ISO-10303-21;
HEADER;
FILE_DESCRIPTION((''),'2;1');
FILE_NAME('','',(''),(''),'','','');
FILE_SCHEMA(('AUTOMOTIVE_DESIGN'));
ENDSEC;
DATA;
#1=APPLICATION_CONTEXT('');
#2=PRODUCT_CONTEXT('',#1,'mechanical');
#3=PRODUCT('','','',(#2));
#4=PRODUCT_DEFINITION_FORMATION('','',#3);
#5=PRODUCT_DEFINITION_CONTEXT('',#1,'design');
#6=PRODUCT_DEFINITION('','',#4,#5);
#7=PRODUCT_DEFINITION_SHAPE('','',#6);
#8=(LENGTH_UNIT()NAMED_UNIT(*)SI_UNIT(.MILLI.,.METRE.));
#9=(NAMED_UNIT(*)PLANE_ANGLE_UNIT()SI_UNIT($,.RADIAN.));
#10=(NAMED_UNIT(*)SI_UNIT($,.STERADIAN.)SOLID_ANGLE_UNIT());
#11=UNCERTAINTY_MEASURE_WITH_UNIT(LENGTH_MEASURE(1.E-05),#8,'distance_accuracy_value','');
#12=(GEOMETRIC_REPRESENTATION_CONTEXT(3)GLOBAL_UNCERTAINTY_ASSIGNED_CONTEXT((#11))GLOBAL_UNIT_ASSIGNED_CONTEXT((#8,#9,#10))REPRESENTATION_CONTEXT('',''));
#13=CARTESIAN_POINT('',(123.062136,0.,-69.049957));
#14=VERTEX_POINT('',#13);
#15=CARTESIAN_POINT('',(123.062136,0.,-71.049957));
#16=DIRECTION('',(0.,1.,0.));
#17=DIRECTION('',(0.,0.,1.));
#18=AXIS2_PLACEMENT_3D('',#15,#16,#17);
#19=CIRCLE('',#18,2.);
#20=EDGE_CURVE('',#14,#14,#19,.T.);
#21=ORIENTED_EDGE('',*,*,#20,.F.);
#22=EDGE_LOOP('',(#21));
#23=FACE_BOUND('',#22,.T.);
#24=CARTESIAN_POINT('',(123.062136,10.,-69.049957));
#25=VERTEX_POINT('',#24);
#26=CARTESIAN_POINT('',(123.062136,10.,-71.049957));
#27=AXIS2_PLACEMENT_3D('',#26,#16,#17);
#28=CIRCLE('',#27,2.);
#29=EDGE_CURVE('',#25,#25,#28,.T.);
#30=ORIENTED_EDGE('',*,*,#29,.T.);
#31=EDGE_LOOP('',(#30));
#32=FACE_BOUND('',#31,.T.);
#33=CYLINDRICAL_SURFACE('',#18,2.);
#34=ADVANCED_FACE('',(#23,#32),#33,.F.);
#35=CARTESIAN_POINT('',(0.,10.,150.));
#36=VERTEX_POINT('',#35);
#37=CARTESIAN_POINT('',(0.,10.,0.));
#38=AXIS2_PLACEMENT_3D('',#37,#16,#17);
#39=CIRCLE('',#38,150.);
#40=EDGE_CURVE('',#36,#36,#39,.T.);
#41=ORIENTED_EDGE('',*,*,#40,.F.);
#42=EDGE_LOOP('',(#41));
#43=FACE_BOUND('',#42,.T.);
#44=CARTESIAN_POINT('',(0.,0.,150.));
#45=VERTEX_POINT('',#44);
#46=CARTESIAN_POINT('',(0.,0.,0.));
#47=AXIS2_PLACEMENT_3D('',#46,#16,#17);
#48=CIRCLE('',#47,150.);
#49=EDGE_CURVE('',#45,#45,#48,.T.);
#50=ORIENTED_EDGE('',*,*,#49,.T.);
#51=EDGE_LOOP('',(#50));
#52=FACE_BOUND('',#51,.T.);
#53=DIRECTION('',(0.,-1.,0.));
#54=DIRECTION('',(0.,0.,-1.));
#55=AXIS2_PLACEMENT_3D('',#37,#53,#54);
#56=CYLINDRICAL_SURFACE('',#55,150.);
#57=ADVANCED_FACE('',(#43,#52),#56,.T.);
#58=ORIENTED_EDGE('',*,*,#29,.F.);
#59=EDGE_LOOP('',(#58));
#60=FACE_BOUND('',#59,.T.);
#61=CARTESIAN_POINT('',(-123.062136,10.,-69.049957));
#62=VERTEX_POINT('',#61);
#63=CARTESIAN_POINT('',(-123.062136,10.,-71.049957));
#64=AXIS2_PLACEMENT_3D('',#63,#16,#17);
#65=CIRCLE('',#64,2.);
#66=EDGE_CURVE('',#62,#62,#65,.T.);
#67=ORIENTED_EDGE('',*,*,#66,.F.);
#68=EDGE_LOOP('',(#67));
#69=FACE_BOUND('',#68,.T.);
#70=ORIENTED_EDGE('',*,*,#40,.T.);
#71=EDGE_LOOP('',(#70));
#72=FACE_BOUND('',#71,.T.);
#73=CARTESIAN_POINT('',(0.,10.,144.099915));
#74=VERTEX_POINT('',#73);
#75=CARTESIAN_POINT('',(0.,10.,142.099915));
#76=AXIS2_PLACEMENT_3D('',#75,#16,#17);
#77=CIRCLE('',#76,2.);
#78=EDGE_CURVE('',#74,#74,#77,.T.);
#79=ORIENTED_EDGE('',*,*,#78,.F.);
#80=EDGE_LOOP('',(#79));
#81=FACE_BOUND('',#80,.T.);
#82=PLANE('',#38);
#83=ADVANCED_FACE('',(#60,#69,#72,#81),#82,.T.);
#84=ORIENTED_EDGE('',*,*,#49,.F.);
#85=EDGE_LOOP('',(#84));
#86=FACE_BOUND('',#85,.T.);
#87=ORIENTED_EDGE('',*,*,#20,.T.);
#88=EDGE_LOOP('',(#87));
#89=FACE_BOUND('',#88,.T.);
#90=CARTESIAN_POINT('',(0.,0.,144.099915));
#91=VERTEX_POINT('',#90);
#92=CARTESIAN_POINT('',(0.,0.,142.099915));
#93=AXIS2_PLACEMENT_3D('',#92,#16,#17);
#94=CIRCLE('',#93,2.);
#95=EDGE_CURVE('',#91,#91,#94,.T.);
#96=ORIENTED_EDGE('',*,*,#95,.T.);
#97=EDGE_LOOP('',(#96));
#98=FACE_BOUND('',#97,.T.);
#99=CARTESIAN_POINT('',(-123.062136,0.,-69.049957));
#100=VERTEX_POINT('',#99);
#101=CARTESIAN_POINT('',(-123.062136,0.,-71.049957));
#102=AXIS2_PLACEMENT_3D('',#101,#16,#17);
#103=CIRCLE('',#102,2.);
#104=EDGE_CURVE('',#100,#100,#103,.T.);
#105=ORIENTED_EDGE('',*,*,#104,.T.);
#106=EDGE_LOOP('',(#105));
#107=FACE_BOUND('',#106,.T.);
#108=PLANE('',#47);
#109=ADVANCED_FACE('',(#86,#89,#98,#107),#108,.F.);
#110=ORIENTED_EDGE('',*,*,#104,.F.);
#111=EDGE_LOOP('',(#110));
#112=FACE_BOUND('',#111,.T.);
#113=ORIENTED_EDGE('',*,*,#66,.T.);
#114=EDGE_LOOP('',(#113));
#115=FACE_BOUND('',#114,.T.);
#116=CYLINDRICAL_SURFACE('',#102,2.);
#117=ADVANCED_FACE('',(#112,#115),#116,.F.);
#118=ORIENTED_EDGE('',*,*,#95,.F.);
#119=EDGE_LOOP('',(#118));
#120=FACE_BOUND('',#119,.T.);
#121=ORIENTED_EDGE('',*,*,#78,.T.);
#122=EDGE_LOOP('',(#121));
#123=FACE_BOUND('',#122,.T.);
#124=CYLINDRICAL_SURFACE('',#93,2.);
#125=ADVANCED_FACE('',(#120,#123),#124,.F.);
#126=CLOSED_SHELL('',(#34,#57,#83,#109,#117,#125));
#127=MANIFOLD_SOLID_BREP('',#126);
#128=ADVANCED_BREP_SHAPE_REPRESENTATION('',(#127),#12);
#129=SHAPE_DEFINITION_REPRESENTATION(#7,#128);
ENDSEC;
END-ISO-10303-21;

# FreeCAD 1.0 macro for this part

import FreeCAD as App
import Part
import Sketcher

V = App.Vector

doc = App.newDocument("Part")
params = doc.addObject("Spreadsheet::Sheet", "Params")
for row, (alias, value) in enumerate([
    ("sketch1_diameter", "300 mm"),
    ("pad1_length", "10 mm"),
    ("sketch2_diameter", "4 mm"),
    ("pocket1_length", "10 mm"),
], start=1):
    params.set(f"A{row}", alias)
    params.set(f"B{row}", "=" + value)
    params.setAlias(f"B{row}", alias)

body = doc.addObject("PartDesign::Body", "Body")

sketch1 = body.newObject("Sketcher::SketchObject", "Sketch")
sketch1.AttachmentSupport = (doc.getObject("XZ_Plane"), [""])
sketch1.MapMode = "FlatFace"
sketch1.addGeometry(Part.Circle(V(0, 0, 0), V(0, 0, 1), 150), False)
sketch1.addConstraint(Sketcher.Constraint("Coincident", 0, 3, -1, 1))
sketch1.addConstraint(Sketcher.Constraint("Diameter", 0, 300.0))
sketch1.setExpression("Constraints[1]", "Params.sketch1_diameter")
pad1 = body.newObject("PartDesign::Pad", "Pad")
pad1.Profile = sketch1
pad1.setExpression("Length", "Params.pad1_length")
pad1.Reversed = True

sketch2 = body.newObject("Sketcher::SketchObject", "Sketch001")
sketch2.AttachmentSupport = (doc.getObject("XZ_Plane"), [""])
sketch2.MapMode = "FlatFace"
sketch2.AttachmentOffset = App.Placement(V(0, 0, -10), App.Rotation())
sketch2.addGeometry(Part.Circle(V(-123.062136, -71.049957, 0), V(0, 0, 1), 2), False)
sketch2.addGeometry(Part.Circle(V(123.062136, -71.049957, 0), V(0, 0, 1), 2), False)
sketch2.addGeometry(Part.Circle(V(0, 142.099915, 0), V(0, 0, 1), 2), False)
sketch2.addConstraint(Sketcher.Constraint("Equal", 0, 1))
sketch2.addConstraint(Sketcher.Constraint("Equal", 1, 2))
sketch2.addConstraint(Sketcher.Constraint("Symmetric", 0, 3, 1, 3, -2))
sketch2.addConstraint(Sketcher.Constraint("PointOnObject", 2, 3, -2))
sketch2.addConstraint(Sketcher.Constraint("Diameter", 0, 4.0))
sketch2.addConstraint(Sketcher.Constraint("DistanceX", 0, 3, -1, 1, 123.062136))
sketch2.addConstraint(Sketcher.Constraint("DistanceY", 0, 3, -1, 1, 71.049957))
sketch2.addConstraint(Sketcher.Constraint("DistanceY", -1, 1, 2, 3, 142.099915))
sketch2.setExpression("Constraints[4]", "Params.sketch2_diameter")
pocket1 = body.newObject("PartDesign::Pocket", "Pocket")
pocket1.Profile = sketch2
pocket1.setExpression("Length", "Params.pocket1_length")
pocket1.Reversed = True

doc.recompute()
